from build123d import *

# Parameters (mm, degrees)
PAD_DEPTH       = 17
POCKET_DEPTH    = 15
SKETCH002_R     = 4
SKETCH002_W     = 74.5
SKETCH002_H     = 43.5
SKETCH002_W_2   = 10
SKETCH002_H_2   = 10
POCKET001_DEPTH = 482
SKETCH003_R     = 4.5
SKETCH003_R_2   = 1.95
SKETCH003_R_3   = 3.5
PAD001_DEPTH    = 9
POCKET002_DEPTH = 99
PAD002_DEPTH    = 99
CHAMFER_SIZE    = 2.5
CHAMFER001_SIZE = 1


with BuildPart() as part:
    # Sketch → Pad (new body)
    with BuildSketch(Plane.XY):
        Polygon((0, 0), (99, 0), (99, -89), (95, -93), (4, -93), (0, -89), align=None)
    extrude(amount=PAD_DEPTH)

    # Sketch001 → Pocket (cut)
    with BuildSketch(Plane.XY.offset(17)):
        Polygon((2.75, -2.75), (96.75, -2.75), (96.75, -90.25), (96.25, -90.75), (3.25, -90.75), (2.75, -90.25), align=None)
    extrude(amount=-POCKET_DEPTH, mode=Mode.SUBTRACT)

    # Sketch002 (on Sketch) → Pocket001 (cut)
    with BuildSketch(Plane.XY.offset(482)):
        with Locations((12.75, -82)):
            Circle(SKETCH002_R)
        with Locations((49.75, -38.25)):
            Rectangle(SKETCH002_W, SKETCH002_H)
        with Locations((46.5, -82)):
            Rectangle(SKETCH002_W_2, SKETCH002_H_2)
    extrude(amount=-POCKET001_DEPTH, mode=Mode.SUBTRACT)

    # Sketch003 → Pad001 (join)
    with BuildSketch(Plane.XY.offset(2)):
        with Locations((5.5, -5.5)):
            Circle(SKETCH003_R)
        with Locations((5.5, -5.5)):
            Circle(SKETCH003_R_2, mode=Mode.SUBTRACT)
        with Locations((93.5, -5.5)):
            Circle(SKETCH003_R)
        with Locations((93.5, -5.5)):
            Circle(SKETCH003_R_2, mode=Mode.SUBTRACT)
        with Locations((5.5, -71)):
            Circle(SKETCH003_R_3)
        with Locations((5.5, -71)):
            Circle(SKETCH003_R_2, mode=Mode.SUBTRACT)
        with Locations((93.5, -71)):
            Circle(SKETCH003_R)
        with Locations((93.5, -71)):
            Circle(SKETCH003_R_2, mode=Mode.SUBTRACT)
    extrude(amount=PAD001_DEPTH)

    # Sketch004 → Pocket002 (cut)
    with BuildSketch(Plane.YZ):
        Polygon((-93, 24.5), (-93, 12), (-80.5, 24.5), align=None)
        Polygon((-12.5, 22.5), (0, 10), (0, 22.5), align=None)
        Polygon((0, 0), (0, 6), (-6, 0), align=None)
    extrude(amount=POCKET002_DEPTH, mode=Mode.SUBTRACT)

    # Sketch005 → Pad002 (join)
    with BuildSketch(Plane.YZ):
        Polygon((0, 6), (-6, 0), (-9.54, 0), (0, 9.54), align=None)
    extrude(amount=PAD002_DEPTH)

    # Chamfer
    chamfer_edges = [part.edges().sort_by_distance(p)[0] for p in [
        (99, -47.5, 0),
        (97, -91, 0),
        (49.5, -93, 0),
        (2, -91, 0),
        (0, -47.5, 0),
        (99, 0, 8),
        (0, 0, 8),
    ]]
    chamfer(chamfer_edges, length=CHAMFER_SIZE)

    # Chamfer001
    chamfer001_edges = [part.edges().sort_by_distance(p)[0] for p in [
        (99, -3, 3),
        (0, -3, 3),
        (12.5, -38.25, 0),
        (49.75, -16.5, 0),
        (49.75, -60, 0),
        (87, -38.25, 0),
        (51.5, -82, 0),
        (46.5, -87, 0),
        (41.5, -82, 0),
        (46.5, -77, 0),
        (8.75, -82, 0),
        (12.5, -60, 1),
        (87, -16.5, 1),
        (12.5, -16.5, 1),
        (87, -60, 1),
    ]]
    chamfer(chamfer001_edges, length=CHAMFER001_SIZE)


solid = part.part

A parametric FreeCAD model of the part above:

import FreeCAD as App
import Part
import Sketcher
from FreeCAD import Vector


def edges_at(feature, points):
    """Names of the edges that pass closest to the given points."""
    edges = feature.Shape.Edges
    near = lambda p: min(range(len(edges)), key=lambda i: edges[i].distToShape(Part.Vertex(*p))[0])
    return sorted({f"Edge{near(p) + 1}" for p in points})


def add_polygon(sketch, points):
    """Adds a closed chain of lines whose ends are joined by coincident constraints."""
    first, n = sketch.GeometryCount, len(points)
    for a, b in zip(points, points[1:] + points[:1]):
        sketch.addGeometry(Part.LineSegment(App.Vector(*a, 0), App.Vector(*b, 0)), False)
    for i in range(n):
        sketch.addConstraint(Sketcher.Constraint("Coincident", first + i, 2, first + (i + 1) % n, 1))

doc = App.newDocument("Part")
body = doc.addObject("PartDesign::Body", "Body")

# Sketch on XY plane
sketch1 = body.newObject("Sketcher::SketchObject", "Sketch")
sketch1.AttachmentSupport = (doc.getObject("XY_Plane"), [""])
sketch1.MapMode = "FlatFace"
add_polygon(sketch1, [(99, 0), (0, 0), (0, -89), (4, -93), (95, -93), (99, -89)])  # lines 0-5
sketch1.addConstraint([
    Sketcher.Constraint("Horizontal", 0),
    Sketcher.Constraint("Vertical", 1),
    Sketcher.Constraint("Horizontal", 3),
    Sketcher.Constraint("Vertical", 5),
    Sketcher.Constraint("Coincident", 0, 2, -1, 1),
    Sketcher.Constraint("Perpendicular", 2, 4),
    Sketcher.Constraint("Horizontal", 1, 2, 4, 2),
    Sketcher.Constraint("Equal", 2, 4),
    Sketcher.Constraint("DistanceX", 0, 2, 0, 1, 99.0),
    Sketcher.Constraint("DistanceX", 3, 1, 3, 2, 91.0),
    Sketcher.Constraint("DistanceY", 1, 2, 1, 1, 89.0),
])
pad1 = body.newObject("PartDesign::Pad", "Pad")
pad1.Profile = sketch1
pad1.Length = 17

# Sketch on XY plane
sketch2 = body.newObject("Sketcher::SketchObject", "Sketch001")
sketch2.AttachmentSupport = (doc.getObject("XY_Plane"), [""])
sketch2.MapMode = "FlatFace"
sketch2.AttachmentOffset = App.Placement(Vector(0, 0, 17), App.Rotation())
add_polygon(sketch2, [(96.75, -2.75), (2.75, -2.75), (2.75, -90.25), (3.25, -90.75), (96.25, -90.75), (96.75, -90.25)])  # lines 0-5
sketch2.addConstraint([
    Sketcher.Constraint("Horizontal", 0),
    Sketcher.Constraint("Vertical", 1),
    Sketcher.Constraint("Horizontal", 3),
    Sketcher.Constraint("Vertical", 5),
    Sketcher.Constraint("Perpendicular", 2, 4),
    Sketcher.Constraint("Horizontal", 1, 2, 4, 2),
    Sketcher.Constraint("Equal", 2, 4),
    Sketcher.Constraint("DistanceX", 0, 2, 0, 1, 94.0),
    Sketcher.Constraint("DistanceX", 3, 1, 3, 2, 93.0),
    Sketcher.Constraint("DistanceY", 1, 2, 1, 1, 87.5),
    Sketcher.Constraint("DistanceX", -1, 1, 0, 2, 2.75),
    Sketcher.Constraint("DistanceY", 0, 2, -1, 1, 2.75),
])
pocket1 = body.newObject("PartDesign::Pocket", "Pocket")
pocket1.Profile = sketch2
pocket1.Length = 15

# Sketch on XY plane
sketch3 = body.newObject("Sketcher::SketchObject", "Sketch002")
sketch3.AttachmentSupport = (doc.getObject("XY_Plane"), [""])
sketch3.MapMode = "FlatFace"
sketch3.AttachmentOffset = App.Placement(Vector(0, 0, 482), App.Rotation())
sketch3.addGeometry(Part.Circle(Vector(12.75, -82, 0), Vector(0, 0, 1), 4), False)  # 0
add_polygon(sketch3, [(12.5, -16.5), (12.5, -60), (87, -60), (87, -16.5)])  # lines 1-4
add_polygon(sketch3, [(41.5, -77), (41.5, -87), (51.5, -87), (51.5, -77)])  # lines 5-8
sketch3.addConstraint([
    Sketcher.Constraint("Vertical", 1),
    Sketcher.Constraint("Horizontal", 2),
    Sketcher.Constraint("Vertical", 3),
    Sketcher.Constraint("Horizontal", 4),
    Sketcher.Constraint("Vertical", 5),
    Sketcher.Constraint("Horizontal", 6),
    Sketcher.Constraint("Vertical", 7),
    Sketcher.Constraint("Horizontal", 8),
    Sketcher.Constraint("Equal", 8, 5),
    Sketcher.Constraint("Diameter", 0, 8.0),
    Sketcher.Constraint("DistanceX", 6, 1, 6, 2, 10.0),
    Sketcher.Constraint("DistanceX", 2, 1, 2, 2, 74.5),
    Sketcher.Constraint("DistanceY", 1, 2, 1, 1, 43.5),
    Sketcher.Constraint("DistanceY", 0, 3, -1, 1, 82.0),
    Sketcher.Constraint("DistanceY", 1, 2, -1, 1, 60.0),
    Sketcher.Constraint("DistanceX", -1, 1, 2, 2, 87.0),
    Sketcher.Constraint("DistanceY", 5, 2, -1, 1, 87.0),
    Sketcher.Constraint("DistanceX", 1, 2, 5, 2, 29.0),
    Sketcher.Constraint("DistanceX", -1, 1, 0, 3, 12.75),
])
pocket2 = body.newObject("PartDesign::Pocket", "Pocket001")
pocket2.Profile = sketch3
pocket2.Length = 482

# Sketch on XY plane
sketch4 = body.newObject("Sketcher::SketchObject", "Sketch003")
sketch4.AttachmentSupport = (doc.getObject("XY_Plane"), [""])
sketch4.MapMode = "FlatFace"
sketch4.AttachmentOffset = App.Placement(Vector(0, 0, 2), App.Rotation())
sketch4.addGeometry([
    Part.Circle(Vector(5.5, -5.5, 0), Vector(0, 0, 1), 4.5),  # 0
    Part.Circle(Vector(5.5, -5.5, 0), Vector(0, 0, 1), 1.95),  # 1
    Part.Circle(Vector(93.5, -5.5, 0), Vector(0, 0, 1), 4.5),  # 2
    Part.Circle(Vector(93.5, -5.5, 0), Vector(0, 0, 1), 1.95),  # 3
    Part.Circle(Vector(5.5, -71, 0), Vector(0, 0, 1), 3.5),  # 4
    Part.Circle(Vector(5.5, -71, 0), Vector(0, 0, 1), 1.95),  # 5
    Part.Circle(Vector(93.5, -71, 0), Vector(0, 0, 1), 4.5),  # 6
    Part.Circle(Vector(93.5, -71, 0), Vector(0, 0, 1), 1.95),  # 7
], False)
sketch4.addConstraint([
    Sketcher.Constraint("Coincident", 1, 3, 0, 3),
    Sketcher.Constraint("Coincident", 3, 3, 2, 3),
    Sketcher.Constraint("Coincident", 5, 3, 4, 3),
    Sketcher.Constraint("Coincident", 7, 3, 6, 3),
    Sketcher.Constraint("Equal", 0, 2),
    Sketcher.Constraint("Equal", 1, 3),
    Sketcher.Constraint("Equal", 3, 5),
    Sketcher.Constraint("Equal", 2, 6),
    Sketcher.Constraint("Equal", 5, 7),
    Sketcher.Constraint("Horizontal", 1, 3, 2, 3),
    Sketcher.Constraint("Horizontal", 5, 3, 6, 3),
    Sketcher.Constraint("Vertical", 1, 3, 4, 3),
    Sketcher.Constraint("Vertical", 3, 3, 6, 3),
    Sketcher.Constraint("Diameter", 0, 9.0),
    Sketcher.Constraint("Diameter", 4, 7.0),
    Sketcher.Constraint("Diameter", 1, 3.9),
    Sketcher.Constraint("DistanceY", 4, 3, -1, 1, 71.0),
    Sketcher.Constraint("DistanceX", 0, 3, 2, 3, 88.0),
    Sketcher.Constraint("DistanceX", -1, 1, 0, 3, 5.5),
    Sketcher.Constraint("DistanceY", 0, 3, -1, 1, 5.5),
])
pad2 = body.newObject("PartDesign::Pad", "Pad001")
pad2.Profile = sketch4
pad2.Length = 9

# Sketch on YZ plane
sketch5 = body.newObject("Sketcher::SketchObject", "Sketch004")
sketch5.AttachmentSupport = (doc.getObject("YZ_Plane"), [""])
sketch5.MapMode = "FlatFace"
add_polygon(sketch5, [(-93, 24.5), (-93, 12), (-80.5, 24.5)])  # lines 0-2
add_polygon(sketch5, [(-12.5, 22.5), (0, 10), (0, 22.5)])  # lines 3-5
add_polygon(sketch5, [(0, 0), (0, 6), (-6, 0)])  # lines 6-8
sketch5.addConstraint([
    Sketcher.Constraint("Vertical", 0),
    Sketcher.Constraint("Horizontal", 2),
    Sketcher.Constraint("Vertical", 4),
    Sketcher.Constraint("Horizontal", 5),
    Sketcher.Constraint("Vertical", 6),
    Sketcher.Constraint("Horizontal", 8),
    Sketcher.Constraint("Coincident", 8, 2, -1, 1),
    Sketcher.Constraint("PointOnObject", 3, 2, -2),
    Sketcher.Constraint("Perpendicular", 1, 3),
    Sketcher.Constraint("Perpendicular", 3, 7),
    Sketcher.Constraint("Equal", 2, 5),
    Sketcher.Constraint("Equal", 5, 0),
    Sketcher.Constraint("DistanceX", 8, 1, 8, 2, 6.0),
    Sketcher.Constraint("DistanceX", 2, 2, 2, 1, 12.5),
    Sketcher.Constraint("DistanceX", 0, 2, -1, 1, 93.0),
    Sketcher.Constraint("DistanceY", -1, 1, 0, 2, 12.0),
    Sketcher.Constraint("DistanceY", -1, 1, 3, 2, 10.0),
])
pocket3 = body.newObject("PartDesign::Pocket", "Pocket002")
pocket3.Profile = sketch5
pocket3.Length = 99
pocket3.Reversed = True

# Sketch on YZ plane
sketch6 = body.newObject("Sketcher::SketchObject", "Sketch005")
sketch6.AttachmentSupport = (doc.getObject("YZ_Plane"), [""])
sketch6.MapMode = "FlatFace"
add_polygon(sketch6, [(-6, 0), (0, 6), (0, 9.54), (-9.54, 0)])  # lines 0-3
sketch6.addConstraint([
    Sketcher.Constraint("Vertical", 1),
    Sketcher.Constraint("Horizontal", 3),
    Sketcher.Constraint("PointOnObject", 0, 2, -2),
    Sketcher.Constraint("PointOnObject", 2, 2, -1),
    Sketcher.Constraint("Parallel", 0, 2),
    Sketcher.Constraint("Equal", 3, 1),
    Sketcher.Constraint("DistanceY", -1, 1, 0, 2, 6.0),
    Sketcher.Constraint("DistanceX", 3, 1, 3, 2, 3.54),
])
pad3 = body.newObject("PartDesign::Pad", "Pad002")
pad3.Profile = sketch6
pad3.Length = 99
doc.recompute()

chamfer = body.newObject("PartDesign::Chamfer", "Chamfer")
chamfer.Base = (pad3, edges_at(pad3, [
    (99, -47.5, 0),
    (97, -91, 0),
    (49.5, -93, 0),
    (2, -91, 0),
    (0, -47.5, 0),
    (99, 0, 8),
    (0, 0, 8),
]))
chamfer.Size = 2.5
doc.recompute()

chamfer2 = body.newObject("PartDesign::Chamfer", "Chamfer001")
chamfer2.Base = (chamfer, edges_at(chamfer, [
    (99, -3, 3),
    (0, -3, 3),
    (12.5, -38.25, 0),
    (49.75, -16.5, 0),
    (49.75, -60, 0),
    (87, -38.25, 0),
    (51.5, -82, 0),
    (46.5, -87, 0),
    (41.5, -82, 0),
    (46.5, -77, 0),
    (8.75, -82, 0),
    (12.5, -60, 1),
    (87, -16.5, 1),
    (12.5, -16.5, 1),
    (87, -60, 1),
]))
chamfer2.Size = 1

doc.recompute()
